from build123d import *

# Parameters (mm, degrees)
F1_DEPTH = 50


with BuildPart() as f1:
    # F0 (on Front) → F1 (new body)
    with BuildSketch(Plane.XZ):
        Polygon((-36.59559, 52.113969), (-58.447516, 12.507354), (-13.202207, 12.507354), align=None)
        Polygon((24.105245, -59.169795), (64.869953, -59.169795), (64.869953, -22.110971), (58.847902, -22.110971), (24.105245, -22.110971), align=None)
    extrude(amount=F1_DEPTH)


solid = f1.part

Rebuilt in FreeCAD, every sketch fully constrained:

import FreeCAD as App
import Part
import Sketcher

V = App.Vector
Q = App.Units.Quantity

doc = App.newDocument("Part")
body = doc.addObject("PartDesign::Body", "Body")
body.AllowCompound = True

# Sketch on XZ plane
sketch1 = body.newObject("Sketcher::SketchObject", "Sketch")
sketch1.AttachmentSupport = (doc.getObject("XZ_Plane"), [""])
sketch1.MapMode = "FlatFace"
sketch1.addGeometry([
    Part.LineSegment(V(-36.59559, 52.113969, 0), V(-58.447516, 12.507354, 0)),  # 0
    Part.LineSegment(V(-58.447516, 12.507354, 0), V(-13.202207, 12.507354, 0)),  # 1
    Part.LineSegment(V(-13.202207, 12.507354, 0), V(-36.59559, 52.113969, 0)),  # 2
    Part.LineSegment(V(24.105245, -59.169795, 0), V(64.869953, -59.169795, 0)),  # 3
    Part.LineSegment(V(64.869953, -59.169795, 0), V(64.869953, -22.110971, 0)),  # 4
    Part.LineSegment(V(64.869953, -22.110971, 0), V(24.105245, -22.110971, 0)),  # 5
    Part.LineSegment(V(24.105245, -22.110971, 0), V(24.105245, -59.169795, 0)),  # 6
], False)
sketch1.addConstraint([
    Sketcher.Constraint("Coincident", 0, 2, 1, 1),
    Sketcher.Constraint("Coincident", 1, 2, 2, 1),
    Sketcher.Constraint("Coincident", 2, 2, 0, 1),
    Sketcher.Constraint("Coincident", 3, 2, 4, 1),
    Sketcher.Constraint("Coincident", 4, 2, 5, 1),
    Sketcher.Constraint("Coincident", 5, 2, 6, 1),
    Sketcher.Constraint("Coincident", 6, 2, 3, 1),
    Sketcher.Constraint("Horizontal", 1),
    Sketcher.Constraint("Horizontal", 3),
    Sketcher.Constraint("Vertical", 4),
    Sketcher.Constraint("Horizontal", 5),
    Sketcher.Constraint("Vertical", 6),
    Sketcher.Constraint("DistanceX", 1, 1, 1, 2, Q("45.245309 mm")),
    Sketcher.Constraint("Distance", 0, Q("45.234839 mm")),
    Sketcher.Constraint("DistanceX", 3, 1, 3, 2, Q("40.764708 mm")),
    Sketcher.Constraint("DistanceY", 4, 1, 4, 2, Q("37.058824 mm")),
    Sketcher.Constraint("DistanceX", 2, 2, -1, 1, Q("36.59559 mm")),
    Sketcher.Constraint("DistanceY", -1, 1, 2, 2, Q("52.113969 mm")),
    Sketcher.Constraint("DistanceY", 4, 2, -1, 1, Q("22.110971 mm")),
    Sketcher.Constraint("DistanceX", 1, 2, 3, 2, Q("78.07216 mm")),
    Sketcher.Constraint("DistanceY", 3, 2, 1, 2, Q("71.677149 mm")),
])
pad1 = body.newObject("PartDesign::Pad", "Pad")
pad1.Profile = sketch1
pad1.Length = 50

doc.recompute()
